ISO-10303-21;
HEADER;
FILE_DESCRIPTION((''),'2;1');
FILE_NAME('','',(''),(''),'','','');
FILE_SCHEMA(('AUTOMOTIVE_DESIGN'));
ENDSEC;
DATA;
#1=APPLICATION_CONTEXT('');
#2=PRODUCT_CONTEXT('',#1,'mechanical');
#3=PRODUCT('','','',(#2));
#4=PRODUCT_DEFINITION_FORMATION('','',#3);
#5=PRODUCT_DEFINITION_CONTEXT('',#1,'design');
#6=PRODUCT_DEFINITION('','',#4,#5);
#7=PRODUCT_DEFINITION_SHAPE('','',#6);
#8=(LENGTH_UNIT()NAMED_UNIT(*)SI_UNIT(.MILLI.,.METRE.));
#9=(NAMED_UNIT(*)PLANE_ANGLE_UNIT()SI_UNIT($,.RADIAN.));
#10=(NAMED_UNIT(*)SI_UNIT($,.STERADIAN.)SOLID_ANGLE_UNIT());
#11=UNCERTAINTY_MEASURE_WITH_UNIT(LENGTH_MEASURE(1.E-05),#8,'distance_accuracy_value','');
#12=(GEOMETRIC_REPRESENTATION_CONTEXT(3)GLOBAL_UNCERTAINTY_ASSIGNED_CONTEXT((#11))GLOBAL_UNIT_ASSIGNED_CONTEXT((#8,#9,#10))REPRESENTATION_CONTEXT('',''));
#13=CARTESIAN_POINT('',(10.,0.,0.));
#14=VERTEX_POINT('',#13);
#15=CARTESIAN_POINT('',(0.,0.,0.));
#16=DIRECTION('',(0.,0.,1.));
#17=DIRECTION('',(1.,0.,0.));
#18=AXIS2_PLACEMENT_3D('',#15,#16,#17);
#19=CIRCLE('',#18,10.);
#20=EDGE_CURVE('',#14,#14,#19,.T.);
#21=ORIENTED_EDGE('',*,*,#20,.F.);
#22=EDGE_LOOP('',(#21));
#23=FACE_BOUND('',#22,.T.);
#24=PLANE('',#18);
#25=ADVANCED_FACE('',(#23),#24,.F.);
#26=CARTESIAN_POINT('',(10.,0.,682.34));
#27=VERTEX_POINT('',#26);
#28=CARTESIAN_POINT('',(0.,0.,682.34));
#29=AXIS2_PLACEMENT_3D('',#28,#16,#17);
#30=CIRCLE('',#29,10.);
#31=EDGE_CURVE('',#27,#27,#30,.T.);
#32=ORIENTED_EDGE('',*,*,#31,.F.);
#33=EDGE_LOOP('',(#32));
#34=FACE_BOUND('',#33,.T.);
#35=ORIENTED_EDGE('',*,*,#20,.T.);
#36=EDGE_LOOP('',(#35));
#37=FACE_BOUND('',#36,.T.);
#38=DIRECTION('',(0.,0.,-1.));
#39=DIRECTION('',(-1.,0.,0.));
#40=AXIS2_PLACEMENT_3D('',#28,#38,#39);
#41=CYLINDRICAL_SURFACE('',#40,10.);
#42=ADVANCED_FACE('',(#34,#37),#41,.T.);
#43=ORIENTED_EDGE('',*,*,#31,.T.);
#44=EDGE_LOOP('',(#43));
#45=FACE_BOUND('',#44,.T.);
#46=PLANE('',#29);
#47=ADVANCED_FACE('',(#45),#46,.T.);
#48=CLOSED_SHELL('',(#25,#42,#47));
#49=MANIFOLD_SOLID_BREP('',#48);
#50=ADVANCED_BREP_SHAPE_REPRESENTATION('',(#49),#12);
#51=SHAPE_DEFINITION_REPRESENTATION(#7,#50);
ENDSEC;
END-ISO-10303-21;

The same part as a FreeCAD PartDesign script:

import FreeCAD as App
import Part
import Sketcher

V = App.Vector

doc = App.newDocument("Part")
body = doc.addObject("PartDesign::Body", "Body")

sketch1 = body.newObject("Sketcher::SketchObject", "Sketch")
sketch1.AttachmentSupport = (doc.getObject("XY_Plane"), [""])
sketch1.MapMode = "FlatFace"
sketch1.addGeometry(Part.Circle(V(0, 0, 0), V(0, 0, 1), 10), False)
sketch1.addConstraint(Sketcher.Constraint("Coincident", 0, 3, -1, 1))
sketch1.addConstraint(Sketcher.Constraint("Diameter", 0, 20.0))
pad1 = body.newObject("PartDesign::Pad", "Pad")
pad1.Profile = sketch1
pad1.Length = 682.34

doc.recompute()
